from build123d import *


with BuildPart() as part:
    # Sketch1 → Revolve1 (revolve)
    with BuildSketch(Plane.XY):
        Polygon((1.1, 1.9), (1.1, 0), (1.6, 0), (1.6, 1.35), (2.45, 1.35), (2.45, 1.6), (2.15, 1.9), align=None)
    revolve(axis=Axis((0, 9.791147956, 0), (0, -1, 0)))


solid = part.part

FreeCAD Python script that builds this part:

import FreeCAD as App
import Part
import Sketcher
Q = App.Units.Quantity

doc = App.newDocument("Part")
body = doc.addObject("PartDesign::Body", "Body")

# Sketch on XY plane
sketch1 = body.newObject("Sketcher::SketchObject", "Sketch")
sketch1.AttachmentSupport = (doc.getObject("XY_Plane"), [""])
sketch1.MapMode = "FlatFace"
sketch1.addGeometry(Part.LineSegment(App.Vector(1.1, 1.9, 0), App.Vector(1.1, 0, 0)), False)
sketch1.addGeometry(Part.LineSegment(App.Vector(1.1, 0, 0), App.Vector(1.6, 0, 0)), False)
sketch1.addGeometry(Part.LineSegment(App.Vector(1.6, 0, 0), App.Vector(1.6, 1.35, 0)), False)
sketch1.addGeometry(Part.LineSegment(App.Vector(1.6, 1.35, 0), App.Vector(2.45, 1.35, 0)), False)
sketch1.addGeometry(Part.LineSegment(App.Vector(2.45, 1.35, 0), App.Vector(2.45, 1.6, 0)), False)
sketch1.addGeometry(Part.LineSegment(App.Vector(2.45, 1.6, 0), App.Vector(2.15, 1.9, 0)), False)
sketch1.addGeometry(Part.LineSegment(App.Vector(2.15, 1.9, 0), App.Vector(1.1, 1.9, 0)), False)
sketch1.addConstraint(Sketcher.Constraint("Coincident", 0, 2, 1, 1))
sketch1.addConstraint(Sketcher.Constraint("Coincident", 1, 2, 2, 1))
sketch1.addConstraint(Sketcher.Constraint("Coincident", 2, 2, 3, 1))
sketch1.addConstraint(Sketcher.Constraint("Coincident", 3, 2, 4, 1))
sketch1.addConstraint(Sketcher.Constraint("Coincident", 4, 2, 5, 1))
sketch1.addConstraint(Sketcher.Constraint("Coincident", 5, 2, 6, 1))
sketch1.addConstraint(Sketcher.Constraint("Coincident", 6, 2, 0, 1))
sketch1.addConstraint(Sketcher.Constraint("Vertical", 0))
sketch1.addConstraint(Sketcher.Constraint("Horizontal", 1))
sketch1.addConstraint(Sketcher.Constraint("Vertical", 2))
sketch1.addConstraint(Sketcher.Constraint("Horizontal", 3))
sketch1.addConstraint(Sketcher.Constraint("Vertical", 4))
sketch1.addConstraint(Sketcher.Constraint("Horizontal", 6))
sketch1.addConstraint(Sketcher.Constraint("PointOnObject", 0, 2, -1))
sketch1.addConstraint(Sketcher.Constraint("Angle", 5, Q("135 deg")))
sketch1.addConstraint(Sketcher.Constraint("DistanceX", 1, 1, 1, 2, Q("0.5 mm")))
sketch1.addConstraint(Sketcher.Constraint("DistanceY", 0, 2, 0, 1, Q("1.9 mm")))
sketch1.addConstraint(Sketcher.Constraint("DistanceX", 3, 1, 3, 2, Q("0.85 mm")))
sketch1.addConstraint(Sketcher.Constraint("DistanceX", 6, 2, 6, 1, Q("1.05 mm")))
sketch1.addConstraint(Sketcher.Constraint("DistanceY", 2, 1, 2, 2, Q("1.35 mm")))
sketch1.addConstraint(Sketcher.Constraint("DistanceX", -1, 1, 0, 2, Q("1.1 mm")))
revolution = body.newObject("PartDesign::Revolution", "Revolution")
revolution.Profile = sketch1
revolution.ReferenceAxis = (sketch1, ["V_Axis"])
revolution.Angle = 360

doc.recompute()
